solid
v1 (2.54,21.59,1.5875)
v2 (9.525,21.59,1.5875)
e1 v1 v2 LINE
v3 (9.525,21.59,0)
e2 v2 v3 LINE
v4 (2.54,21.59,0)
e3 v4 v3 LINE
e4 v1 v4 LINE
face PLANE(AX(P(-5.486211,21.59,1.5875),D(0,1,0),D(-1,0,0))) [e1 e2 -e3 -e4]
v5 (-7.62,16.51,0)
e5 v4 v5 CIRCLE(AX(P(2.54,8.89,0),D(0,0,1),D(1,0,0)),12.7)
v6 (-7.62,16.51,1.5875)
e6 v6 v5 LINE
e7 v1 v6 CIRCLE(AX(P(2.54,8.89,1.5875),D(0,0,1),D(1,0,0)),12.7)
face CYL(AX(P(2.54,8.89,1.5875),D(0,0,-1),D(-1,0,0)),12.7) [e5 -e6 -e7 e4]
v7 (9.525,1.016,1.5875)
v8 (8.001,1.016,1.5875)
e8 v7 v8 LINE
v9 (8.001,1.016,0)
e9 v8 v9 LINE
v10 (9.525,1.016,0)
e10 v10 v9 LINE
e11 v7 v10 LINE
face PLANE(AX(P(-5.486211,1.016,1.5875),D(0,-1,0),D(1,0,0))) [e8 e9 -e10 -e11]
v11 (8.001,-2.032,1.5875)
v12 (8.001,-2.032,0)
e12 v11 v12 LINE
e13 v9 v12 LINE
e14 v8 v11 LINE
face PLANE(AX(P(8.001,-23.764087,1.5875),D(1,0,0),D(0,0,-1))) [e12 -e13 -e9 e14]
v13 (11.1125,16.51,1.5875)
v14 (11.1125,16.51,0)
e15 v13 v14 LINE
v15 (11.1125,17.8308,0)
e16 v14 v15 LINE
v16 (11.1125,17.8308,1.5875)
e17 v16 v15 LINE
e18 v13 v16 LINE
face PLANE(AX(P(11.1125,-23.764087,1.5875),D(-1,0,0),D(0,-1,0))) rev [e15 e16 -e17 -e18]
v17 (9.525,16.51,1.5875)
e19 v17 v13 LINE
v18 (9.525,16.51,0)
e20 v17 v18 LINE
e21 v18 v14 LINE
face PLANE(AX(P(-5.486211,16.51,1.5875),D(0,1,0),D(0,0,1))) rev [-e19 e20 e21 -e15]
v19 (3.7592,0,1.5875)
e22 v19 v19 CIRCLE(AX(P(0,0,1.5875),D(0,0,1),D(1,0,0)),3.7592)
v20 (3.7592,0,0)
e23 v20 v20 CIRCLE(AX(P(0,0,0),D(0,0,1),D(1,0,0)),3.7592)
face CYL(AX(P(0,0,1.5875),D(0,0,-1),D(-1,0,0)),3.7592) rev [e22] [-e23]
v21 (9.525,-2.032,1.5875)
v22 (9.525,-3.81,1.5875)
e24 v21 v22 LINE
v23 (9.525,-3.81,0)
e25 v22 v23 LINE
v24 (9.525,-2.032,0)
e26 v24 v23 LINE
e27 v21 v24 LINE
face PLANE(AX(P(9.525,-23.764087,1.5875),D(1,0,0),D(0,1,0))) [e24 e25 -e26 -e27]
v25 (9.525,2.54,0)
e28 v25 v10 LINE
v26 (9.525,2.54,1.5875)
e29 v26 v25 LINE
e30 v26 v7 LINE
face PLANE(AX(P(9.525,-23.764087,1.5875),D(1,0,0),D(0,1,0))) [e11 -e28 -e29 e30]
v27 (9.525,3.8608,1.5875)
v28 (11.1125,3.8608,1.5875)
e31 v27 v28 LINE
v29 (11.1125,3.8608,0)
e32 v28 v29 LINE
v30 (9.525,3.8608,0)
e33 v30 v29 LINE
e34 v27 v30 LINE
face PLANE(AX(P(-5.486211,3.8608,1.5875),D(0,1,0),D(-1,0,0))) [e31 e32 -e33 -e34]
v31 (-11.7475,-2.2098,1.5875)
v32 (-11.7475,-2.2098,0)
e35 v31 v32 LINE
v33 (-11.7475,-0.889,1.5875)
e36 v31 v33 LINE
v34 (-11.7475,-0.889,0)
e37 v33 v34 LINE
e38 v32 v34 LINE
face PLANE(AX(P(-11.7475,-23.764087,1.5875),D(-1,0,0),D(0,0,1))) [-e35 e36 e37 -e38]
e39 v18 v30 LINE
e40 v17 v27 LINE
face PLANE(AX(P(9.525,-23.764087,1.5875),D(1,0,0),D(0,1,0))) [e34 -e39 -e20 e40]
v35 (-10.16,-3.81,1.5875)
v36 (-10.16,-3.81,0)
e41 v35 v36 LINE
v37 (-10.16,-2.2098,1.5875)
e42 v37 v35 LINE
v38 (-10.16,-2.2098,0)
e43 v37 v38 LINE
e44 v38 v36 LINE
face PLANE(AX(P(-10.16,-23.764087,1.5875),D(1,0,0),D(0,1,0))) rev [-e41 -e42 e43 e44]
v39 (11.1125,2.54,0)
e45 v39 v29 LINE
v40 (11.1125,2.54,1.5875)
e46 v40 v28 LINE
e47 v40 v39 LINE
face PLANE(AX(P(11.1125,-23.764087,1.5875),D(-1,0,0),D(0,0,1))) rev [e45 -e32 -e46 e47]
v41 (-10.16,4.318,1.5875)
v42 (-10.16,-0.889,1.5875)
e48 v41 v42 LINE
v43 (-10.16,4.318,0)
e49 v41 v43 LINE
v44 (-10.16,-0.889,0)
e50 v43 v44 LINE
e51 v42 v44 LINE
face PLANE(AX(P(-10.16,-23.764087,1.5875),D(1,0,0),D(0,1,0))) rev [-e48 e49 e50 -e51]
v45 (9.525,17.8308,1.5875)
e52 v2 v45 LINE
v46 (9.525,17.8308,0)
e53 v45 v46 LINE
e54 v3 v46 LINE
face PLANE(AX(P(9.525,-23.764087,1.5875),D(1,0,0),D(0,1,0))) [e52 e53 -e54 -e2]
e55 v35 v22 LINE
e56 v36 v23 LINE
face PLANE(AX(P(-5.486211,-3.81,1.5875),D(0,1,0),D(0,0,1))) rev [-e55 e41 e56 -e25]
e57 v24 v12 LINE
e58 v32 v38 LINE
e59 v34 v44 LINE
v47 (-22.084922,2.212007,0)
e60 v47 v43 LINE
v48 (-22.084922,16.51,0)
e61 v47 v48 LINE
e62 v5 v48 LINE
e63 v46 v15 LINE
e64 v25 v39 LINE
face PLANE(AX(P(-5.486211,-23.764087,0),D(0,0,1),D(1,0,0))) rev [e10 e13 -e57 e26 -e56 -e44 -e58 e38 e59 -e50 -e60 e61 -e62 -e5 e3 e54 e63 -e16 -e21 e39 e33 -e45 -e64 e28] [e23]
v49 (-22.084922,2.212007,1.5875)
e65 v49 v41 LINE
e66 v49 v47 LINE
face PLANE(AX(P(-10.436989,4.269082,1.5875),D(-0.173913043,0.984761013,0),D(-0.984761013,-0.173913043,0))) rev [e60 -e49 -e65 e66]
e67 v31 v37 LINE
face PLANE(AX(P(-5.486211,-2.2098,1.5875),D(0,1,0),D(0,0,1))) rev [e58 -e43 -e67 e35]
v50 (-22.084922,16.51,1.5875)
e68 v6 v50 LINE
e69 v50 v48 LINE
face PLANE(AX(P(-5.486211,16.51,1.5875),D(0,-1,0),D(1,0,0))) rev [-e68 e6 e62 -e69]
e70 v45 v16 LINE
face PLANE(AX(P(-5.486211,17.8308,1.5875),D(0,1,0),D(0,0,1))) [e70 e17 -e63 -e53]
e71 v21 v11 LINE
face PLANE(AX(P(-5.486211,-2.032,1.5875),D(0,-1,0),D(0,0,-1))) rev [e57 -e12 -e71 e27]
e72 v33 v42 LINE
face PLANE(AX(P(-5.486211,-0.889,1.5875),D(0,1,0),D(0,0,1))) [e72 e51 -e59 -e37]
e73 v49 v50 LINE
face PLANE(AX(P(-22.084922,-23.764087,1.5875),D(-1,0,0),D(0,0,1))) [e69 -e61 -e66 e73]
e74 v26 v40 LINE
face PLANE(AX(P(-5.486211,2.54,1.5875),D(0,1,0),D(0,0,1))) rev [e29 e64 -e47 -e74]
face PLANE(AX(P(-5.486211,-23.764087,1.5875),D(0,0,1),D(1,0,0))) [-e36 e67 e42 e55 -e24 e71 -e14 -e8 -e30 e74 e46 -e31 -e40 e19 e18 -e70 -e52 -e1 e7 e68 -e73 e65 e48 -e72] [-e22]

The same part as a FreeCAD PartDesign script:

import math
import FreeCAD as App
import Part
import Sketcher
Q = App.Units.Quantity

doc = App.newDocument("Part")
body = doc.addObject("PartDesign::Body", "Body")

# Sketch on XY plane
sketch1 = body.newObject("Sketcher::SketchObject", "Sketch")
sketch1.AttachmentSupport = (doc.getObject("XY_Plane"), [""])
sketch1.MapMode = "FlatFace"
sketch1.addGeometry([
    Part.ArcOfCircle(Part.Circle(App.Vector(2.5, 8.9, 0), App.Vector(0, 0, 1), 12.7), math.radians(90), math.radians(143)),  # 0
    Part.LineSegment(App.Vector(-7.6, 16.5, 0), App.Vector(-22.1, 16.5, 0)),  # 1
    Part.LineSegment(App.Vector(-22.1, 16.5, 0), App.Vector(-22.1, 2.2, 0)),  # 2
    Part.LineSegment(App.Vector(-22.1, 2.2, 0), App.Vector(-10.2, 4.3, 0)),  # 3
    Part.LineSegment(App.Vector(-10.2, 4.3, 0), App.Vector(-10.2, -0.9, 0)),  # 4
    Part.LineSegment(App.Vector(-10.2, -0.9, 0), App.Vector(-11.7, -0.9, 0)),  # 5
    Part.LineSegment(App.Vector(-11.7, -0.9, 0), App.Vector(-11.7, -2.2, 0)),  # 6
    Part.LineSegment(App.Vector(-11.7, -2.2, 0), App.Vector(-10.2, -2.2, 0)),  # 7
    Part.LineSegment(App.Vector(-10.2, -2.2, 0), App.Vector(-10.2, -3.8, 0)),  # 8
    Part.LineSegment(App.Vector(-10.2, -3.8, 0), App.Vector(9.5, -3.8, 0)),  # 9
    Part.LineSegment(App.Vector(9.5, -3.8, 0), App.Vector(9.5, -2, 0)),  # 10
    Part.LineSegment(App.Vector(9.5, -2, 0), App.Vector(8, -2, 0)),  # 11
    Part.LineSegment(App.Vector(8, -2, 0), App.Vector(8, 1, 0)),  # 12
    Part.LineSegment(App.Vector(8, 1, 0), App.Vector(9.5, 1, 0)),  # 13
    Part.LineSegment(App.Vector(9.5, 1, 0), App.Vector(9.5, 2.5, 0)),  # 14
    Part.LineSegment(App.Vector(9.5, 2.5, 0), App.Vector(11.1, 2.5, 0)),  # 15
    Part.LineSegment(App.Vector(11.1, 2.5, 0), App.Vector(11.1, 3.9, 0)),  # 16
    Part.LineSegment(App.Vector(11.1, 3.9, 0), App.Vector(9.5, 3.9, 0)),  # 17
    Part.LineSegment(App.Vector(9.5, 3.9, 0), App.Vector(9.5, 16.5, 0)),  # 18
    Part.LineSegment(App.Vector(9.5, 16.5, 0), App.Vector(11.1, 16.5, 0)),  # 19
    Part.LineSegment(App.Vector(11.1, 16.5, 0), App.Vector(11.1, 17.8, 0)),  # 20
    Part.LineSegment(App.Vector(11.1, 17.8, 0), App.Vector(9.5, 17.8, 0)),  # 21
    Part.LineSegment(App.Vector(9.5, 17.8, 0), App.Vector(9.5, 21.6, 0)),  # 22
    Part.LineSegment(App.Vector(9.5, 21.6, 0), App.Vector(2.5, 21.6, 0)),  # 23
    Part.Circle(App.Vector(0, 0, 0), App.Vector(0, 0, 1), 3.8),  # 24
], False)
sketch1.addConstraint([
    Sketcher.Constraint("Coincident", 0, 2, 1, 1),
    Sketcher.Constraint("Coincident", 1, 2, 2, 1),
    Sketcher.Constraint("Coincident", 2, 2, 3, 1),
    Sketcher.Constraint("Coincident", 3, 2, 4, 1),
    Sketcher.Constraint("Coincident", 4, 2, 5, 1),
    Sketcher.Constraint("Coincident", 5, 2, 6, 1),
    Sketcher.Constraint("Coincident", 6, 2, 7, 1),
    Sketcher.Constraint("Coincident", 7, 2, 8, 1),
    Sketcher.Constraint("Coincident", 8, 2, 9, 1),
    Sketcher.Constraint("Coincident", 9, 2, 10, 1),
    Sketcher.Constraint("Coincident", 10, 2, 11, 1),
    Sketcher.Constraint("Coincident", 11, 2, 12, 1),
    Sketcher.Constraint("Coincident", 12, 2, 13, 1),
    Sketcher.Constraint("Coincident", 13, 2, 14, 1),
    Sketcher.Constraint("Coincident", 14, 2, 15, 1),
    Sketcher.Constraint("Coincident", 15, 2, 16, 1),
    Sketcher.Constraint("Coincident", 16, 2, 17, 1),
    Sketcher.Constraint("Coincident", 17, 2, 18, 1),
    Sketcher.Constraint("Coincident", 18, 2, 19, 1),
    Sketcher.Constraint("Coincident", 19, 2, 20, 1),
    Sketcher.Constraint("Coincident", 20, 2, 21, 1),
    Sketcher.Constraint("Coincident", 21, 2, 22, 1),
    Sketcher.Constraint("Coincident", 22, 2, 23, 1),
    Sketcher.Constraint("Tangent", 23, 2, 0, 1),
    Sketcher.Constraint("Horizontal", 1),
    Sketcher.Constraint("Vertical", 2),
    Sketcher.Constraint("Vertical", 4),
    Sketcher.Constraint("Horizontal", 5),
    Sketcher.Constraint("Vertical", 6),
    Sketcher.Constraint("Horizontal", 7),
    Sketcher.Constraint("Vertical", 8),
    Sketcher.Constraint("Horizontal", 9),
    Sketcher.Constraint("Vertical", 10),
    Sketcher.Constraint("Horizontal", 11),
    Sketcher.Constraint("Vertical", 12),
    Sketcher.Constraint("Horizontal", 13),
    Sketcher.Constraint("Vertical", 14),
    Sketcher.Constraint("Horizontal", 15),
    Sketcher.Constraint("Vertical", 16),
    Sketcher.Constraint("Horizontal", 17),
    Sketcher.Constraint("Vertical", 18),
    Sketcher.Constraint("Horizontal", 19),
    Sketcher.Constraint("Vertical", 20),
    Sketcher.Constraint("Horizontal", 21),
    Sketcher.Constraint("Vertical", 22),
    Sketcher.Constraint("Horizontal", 23),
    Sketcher.Constraint("Coincident", 24, 3, -1, 1),
    Sketcher.Constraint("Horizontal", 1, 2, 18, 2),
    Sketcher.Constraint("Vertical", 4, 2, 7, 2),
    Sketcher.Constraint("Vertical", 10, 2, 13, 2),
    Sketcher.Constraint("Vertical", 14, 2, 17, 2),
    Sketcher.Constraint("Vertical", 16, 2, 19, 2),
    Sketcher.Constraint("Vertical", 18, 2, 21, 2),
    Sketcher.Constraint("Equal", 7, 15),
    Sketcher.Constraint("Equal", 13, 14),
    Sketcher.Constraint("Equal", 6, 16),
    Sketcher.Constraint("Equal", 16, 20),
    Sketcher.Constraint("Radius", 0, Q("0.5 in")),
    Sketcher.Constraint("Diameter", 24, Q("0.296 in")),
    Sketcher.Constraint("DistanceX", 11, 2, 11, 1, Q("0.06 in")),
    Sketcher.Constraint("DistanceY", 10, 1, 10, 2, Q("0.07 in")),
    Sketcher.Constraint("DistanceY", 12, 1, 12, 2, Q("0.12 in")),
    Sketcher.Constraint("DistanceX", -1, 1, 0, 3, Q("0.1 in")),
    Sketcher.Constraint("DistanceX", 0, 2, -1, 1, Q("0.3 in")),
    Sketcher.Constraint("DistanceX", 3, 2, -1, 1, Q("0.4 in")),
    Sketcher.Constraint("DistanceY", -1, 1, 14, 2, Q("0.1 in")),
    Sketcher.Constraint("DistanceY", 9, 2, 0, 3, Q("0.5 in")),
    Sketcher.Constraint("DistanceX", 5, 2, 5, 1, Q("0.0625 in")),
    Sketcher.Constraint("DistanceX", 9, 1, 9, 2, Q("0.775 in")),
    Sketcher.Constraint("DistanceY", 4, 2, 4, 1, Q("0.205 in")),
    Sketcher.Constraint("DistanceY", 6, 2, 6, 1, Q("0.052 in")),
    Sketcher.Constraint("DistanceY", 8, 2, 8, 1, Q("0.063 in")),
    Sketcher.Constraint("DistanceX", 1, 2, 1, 1, Q("14.464922 mm")),
    Sketcher.Constraint("DistanceY", 2, 2, 2, 1, Q("14.297993 mm")),
])
pad1 = body.newObject("PartDesign::Pad", "Pad")
pad1.Profile = sketch1
pad1.Length = Q("0.0625 in")

doc.recompute()
